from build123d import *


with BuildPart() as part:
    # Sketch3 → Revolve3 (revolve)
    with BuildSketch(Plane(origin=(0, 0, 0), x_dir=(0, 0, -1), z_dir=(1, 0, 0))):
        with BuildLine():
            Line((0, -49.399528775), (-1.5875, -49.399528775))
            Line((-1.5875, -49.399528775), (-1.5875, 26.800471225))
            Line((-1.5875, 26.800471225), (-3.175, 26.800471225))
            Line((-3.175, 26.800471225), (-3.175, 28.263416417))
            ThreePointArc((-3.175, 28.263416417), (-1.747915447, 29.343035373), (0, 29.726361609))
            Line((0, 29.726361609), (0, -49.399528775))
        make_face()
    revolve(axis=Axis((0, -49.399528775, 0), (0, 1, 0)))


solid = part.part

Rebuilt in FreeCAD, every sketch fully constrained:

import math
import FreeCAD as App
import Part
import Sketcher
Q = App.Units.Quantity

doc = App.newDocument("Part")
params = doc.addObject("Spreadsheet::Sheet", "Params")
for row, (alias, value) in enumerate([
    ("sketch1_width", "3 in"),
    ("sketch1_height", "0.0625 in"),
    ("revolution_angle", "360 deg"),
], start=1):
    params.set(f"A{row}", alias)
    params.set(f"B{row}", "=" + value)
    params.setAlias(f"B{row}", alias)

body = doc.addObject("PartDesign::Body", "Body")

sketch1 = body.newObject("Sketcher::SketchObject", "Sketch")
sketch1.AttachmentSupport = (doc.getObject("YZ_Plane"), [""])
sketch1.MapMode = "FlatFace"
sketch1.addGeometry([
    Part.LineSegment(App.Vector(-49.399529, 1.5875, 0), App.Vector(-49.399529, 0, 0)),
    Part.LineSegment(App.Vector(-49.399529, 0, 0), App.Vector(29.726362, 0, 0)),
    Part.ArcOfCircle(Part.Circle(App.Vector(25.54957, 0, 0), App.Vector(0, 0, 1), 4.176791), math.radians(0), math.radians(49.477678)),
    Part.LineSegment(App.Vector(28.263416, 3.175, 0), App.Vector(26.800471, 3.175, 0)),
    Part.LineSegment(App.Vector(26.800471, 3.175, 0), App.Vector(26.800471, 1.5875, 0)),
    Part.LineSegment(App.Vector(26.800471, 1.5875, 0), App.Vector(-49.399529, 1.5875, 0)),
], False)
sketch1.addConstraint([
    Sketcher.Constraint("Coincident", 0, 2, 1, 1),
    Sketcher.Constraint("Coincident", 1, 2, 2, 1),
    Sketcher.Constraint("Coincident", 2, 2, 3, 1),
    Sketcher.Constraint("Coincident", 3, 2, 4, 1),
    Sketcher.Constraint("Coincident", 4, 2, 5, 1),
    Sketcher.Constraint("Coincident", 5, 2, 0, 1),
    Sketcher.Constraint("Vertical", 0),
    Sketcher.Constraint("Horizontal", 1),
    Sketcher.Constraint("Horizontal", 3),
    Sketcher.Constraint("Vertical", 4),
    Sketcher.Constraint("Horizontal", 5),
    Sketcher.Constraint("PointOnObject", 2, 3, -1),
    Sketcher.Constraint("PointOnObject", 0, 2, -1),
    Sketcher.Constraint("Equal", 0, 4),
    Sketcher.Constraint("DistanceX", 5, 2, 5, 1, Q("3 in")),
    Sketcher.Constraint("DistanceY", 0, 2, 0, 1, Q("0.0625 in")),
    Sketcher.Constraint("Radius", 2, 4.176791),
    Sketcher.Constraint("DistanceX", 1, 1, 1, 2, 79.12589),
    Sketcher.Constraint("DistanceX", -1, 1, 2, 3, 25.54957),
])
sketch1.setExpression("Constraints[14]", "Params.sketch1_width")
sketch1.setExpression("Constraints[15]", "Params.sketch1_height")
revolution = body.newObject("PartDesign::Revolution", "Revolution")
revolution.Profile = sketch1
revolution.ReferenceAxis = (sketch1, ["H_Axis"])
revolution.setExpression("Angle", "Params.revolution_angle")

doc.recompute()
